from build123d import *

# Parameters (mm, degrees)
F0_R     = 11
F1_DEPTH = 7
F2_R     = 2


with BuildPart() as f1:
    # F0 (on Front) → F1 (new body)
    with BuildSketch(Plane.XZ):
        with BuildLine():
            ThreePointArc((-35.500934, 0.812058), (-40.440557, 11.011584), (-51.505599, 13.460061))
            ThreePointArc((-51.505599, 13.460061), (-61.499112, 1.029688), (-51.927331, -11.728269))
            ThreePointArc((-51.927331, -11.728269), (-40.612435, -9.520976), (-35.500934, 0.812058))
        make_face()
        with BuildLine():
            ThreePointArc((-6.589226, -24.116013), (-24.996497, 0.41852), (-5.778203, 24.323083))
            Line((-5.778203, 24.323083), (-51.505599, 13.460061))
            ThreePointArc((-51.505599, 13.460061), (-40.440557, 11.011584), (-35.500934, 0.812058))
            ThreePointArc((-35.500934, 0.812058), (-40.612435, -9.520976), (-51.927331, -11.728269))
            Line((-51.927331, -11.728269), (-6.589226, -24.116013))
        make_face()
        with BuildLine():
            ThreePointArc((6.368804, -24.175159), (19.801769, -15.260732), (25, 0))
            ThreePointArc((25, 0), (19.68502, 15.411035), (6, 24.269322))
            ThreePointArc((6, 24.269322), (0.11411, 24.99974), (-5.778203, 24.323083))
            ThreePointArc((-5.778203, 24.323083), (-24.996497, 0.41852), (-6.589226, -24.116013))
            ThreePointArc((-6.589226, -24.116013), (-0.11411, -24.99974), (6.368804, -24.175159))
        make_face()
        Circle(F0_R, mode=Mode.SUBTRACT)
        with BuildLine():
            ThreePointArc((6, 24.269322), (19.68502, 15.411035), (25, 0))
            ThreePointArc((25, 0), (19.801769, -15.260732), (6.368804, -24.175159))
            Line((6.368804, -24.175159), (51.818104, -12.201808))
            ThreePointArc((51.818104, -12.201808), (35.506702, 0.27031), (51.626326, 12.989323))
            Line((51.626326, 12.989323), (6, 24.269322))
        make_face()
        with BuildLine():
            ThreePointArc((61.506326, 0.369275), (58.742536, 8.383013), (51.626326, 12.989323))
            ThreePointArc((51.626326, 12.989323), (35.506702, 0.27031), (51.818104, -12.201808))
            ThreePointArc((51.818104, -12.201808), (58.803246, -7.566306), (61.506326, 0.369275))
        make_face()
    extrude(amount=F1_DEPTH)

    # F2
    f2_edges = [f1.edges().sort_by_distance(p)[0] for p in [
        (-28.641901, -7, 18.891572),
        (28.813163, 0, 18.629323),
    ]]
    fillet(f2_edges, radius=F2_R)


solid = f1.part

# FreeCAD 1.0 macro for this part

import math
import FreeCAD as App
import Part
import Sketcher

V = App.Vector
Q = App.Units.Quantity


def edges_at(feature, points):
    """Names of the edges that pass closest to the given points."""
    edges = feature.Shape.Edges
    near = lambda p: min(range(len(edges)), key=lambda i: edges[i].distToShape(Part.Vertex(*p))[0])
    return sorted({f"Edge{near(p) + 1}" for p in points})

doc = App.newDocument("Part")
body = doc.addObject("PartDesign::Body", "Body")

sketch1 = body.newObject("Sketcher::SketchObject", "Sketch")
sketch1.AttachmentSupport = (doc.getObject("XZ_Plane"), [""])
sketch1.MapMode = "FlatFace"
sketch1.addGeometry([
    Part.ArcOfCircle(Part.Circle(V(-48.500934, 0.812058, 0), V(0, 0, 1), 13), math.radians(103.363496), math.radians(254.71806)),
    Part.LineSegment(V(-51.927331, -11.728269, 0), V(-6.589226, -24.116013, 0)),
    Part.ArcOfCircle(Part.Circle(V(0, -0.000024, 0), V(0, 0, 1), 24.999976), math.radians(-105.281956), math.radians(-75.241085)),
    Part.LineSegment(V(6.368804, -24.175159, 0), V(51.818104, -12.201808, 0)),
    Part.ArcOfCircle(Part.Circle(V(48.506327, 0.369274, 0), V(0, 0, 1), 12.999999), math.radians(-75.241104), math.radians(0.000003)),
    Part.ArcOfCircle(Part.Circle(V(48.506324, 0.369274, 0), V(0, 0, 1), 13.000002), math.radians(0.000006), math.radians(76.113452)),
    Part.LineSegment(V(51.626326, 12.989323, 0), V(6, 24.269322, 0)),
    Part.ArcOfCircle(Part.Circle(V(0, 0.00002, 0), V(0, 0, 1), 24.999981), math.radians(76.113448), math.radians(103.363508)),
    Part.LineSegment(V(-5.778203, 24.323083, 0), V(-51.505599, 13.460061, 0)),
    Part.Circle(V(0, 0, 0), V(0, 0, 1), 11),
], False)
sketch1.addConstraint([
    Sketcher.Constraint("Coincident", 0, 2, 1, 1),
    Sketcher.Constraint("Coincident", 1, 2, 2, 1),
    Sketcher.Constraint("Coincident", 2, 2, 3, 1),
    Sketcher.Constraint("Coincident", 3, 2, 4, 1),
    Sketcher.Constraint("Coincident", 4, 2, 5, 1),
    Sketcher.Constraint("Coincident", 5, 2, 6, 1),
    Sketcher.Constraint("Coincident", 6, 2, 7, 1),
    Sketcher.Constraint("Coincident", 7, 2, 8, 1),
    Sketcher.Constraint("Coincident", 8, 2, 0, 1),
    Sketcher.Constraint("Coincident", 9, 3, -1, 1),
    Sketcher.Constraint("Coincident", 5, 3, 4, 3),
    Sketcher.Constraint("PointOnObject", 2, 3, -2),
    Sketcher.Constraint("PointOnObject", 7, 3, -2),
    Sketcher.Constraint("Diameter", 9, Q("22 mm")),
    Sketcher.Constraint("Radius", 0, Q("13 mm")),
    Sketcher.Constraint("Radius", 4, Q("12.999999 mm")),
    Sketcher.Constraint("Distance", 1, Q("47 mm")),
    Sketcher.Constraint("Distance", 3, Q("47 mm")),
    Sketcher.Constraint("Distance", 6, Q("47 mm")),
    Sketcher.Constraint("Distance", 8, Q("47 mm")),
    Sketcher.Constraint("DistanceX", -1, 1, 6, 2, Q("6 mm")),
    Sketcher.Constraint("Radius", 7, Q("24.999981 mm")),
    Sketcher.Constraint("DistanceX", 4, 3, 5, 2, Q("3.119999 mm")),
    Sketcher.Constraint("DistanceY", 5, 2, 6, 2, Q("11.279999 mm")),
    Sketcher.Constraint("Radius", 2, Q("24.999976 mm")),
    Sketcher.Constraint("DistanceX", 8, 2, -1, 1, Q("51.505599 mm")),
    Sketcher.Constraint("DistanceY", 2, 3, 4, 3, Q("0.369298 mm")),
    Sketcher.Constraint("DistanceX", 0, 2, -1, 1, Q("51.927331 mm")),
    Sketcher.Constraint("DistanceY", 0, 2, -1, 1, Q("11.728269 mm")),
    Sketcher.Constraint("DistanceY", 2, 2, -1, 1, Q("24.175159 mm")),
    Sketcher.Constraint("DistanceY", -1, 1, 6, 2, Q("24.269322 mm")),
    Sketcher.Constraint("DistanceY", -1, 1, 8, 2, Q("13.460061 mm")),
    Sketcher.Constraint("DistanceY", 4, 2, 5, 2, Q("12.620048 mm")),
])
pad1 = body.newObject("PartDesign::Pad", "Pad")
pad1.Profile = sketch1
pad1.Length = 7
doc.recompute()

fillet = body.newObject("PartDesign::Fillet", "Fillet")
fillet.Base = (pad1, edges_at(pad1, [(-28.642, -7, 18.892), (28.813, 0, 18.629)]))
fillet.Radius = 2

doc.recompute()
